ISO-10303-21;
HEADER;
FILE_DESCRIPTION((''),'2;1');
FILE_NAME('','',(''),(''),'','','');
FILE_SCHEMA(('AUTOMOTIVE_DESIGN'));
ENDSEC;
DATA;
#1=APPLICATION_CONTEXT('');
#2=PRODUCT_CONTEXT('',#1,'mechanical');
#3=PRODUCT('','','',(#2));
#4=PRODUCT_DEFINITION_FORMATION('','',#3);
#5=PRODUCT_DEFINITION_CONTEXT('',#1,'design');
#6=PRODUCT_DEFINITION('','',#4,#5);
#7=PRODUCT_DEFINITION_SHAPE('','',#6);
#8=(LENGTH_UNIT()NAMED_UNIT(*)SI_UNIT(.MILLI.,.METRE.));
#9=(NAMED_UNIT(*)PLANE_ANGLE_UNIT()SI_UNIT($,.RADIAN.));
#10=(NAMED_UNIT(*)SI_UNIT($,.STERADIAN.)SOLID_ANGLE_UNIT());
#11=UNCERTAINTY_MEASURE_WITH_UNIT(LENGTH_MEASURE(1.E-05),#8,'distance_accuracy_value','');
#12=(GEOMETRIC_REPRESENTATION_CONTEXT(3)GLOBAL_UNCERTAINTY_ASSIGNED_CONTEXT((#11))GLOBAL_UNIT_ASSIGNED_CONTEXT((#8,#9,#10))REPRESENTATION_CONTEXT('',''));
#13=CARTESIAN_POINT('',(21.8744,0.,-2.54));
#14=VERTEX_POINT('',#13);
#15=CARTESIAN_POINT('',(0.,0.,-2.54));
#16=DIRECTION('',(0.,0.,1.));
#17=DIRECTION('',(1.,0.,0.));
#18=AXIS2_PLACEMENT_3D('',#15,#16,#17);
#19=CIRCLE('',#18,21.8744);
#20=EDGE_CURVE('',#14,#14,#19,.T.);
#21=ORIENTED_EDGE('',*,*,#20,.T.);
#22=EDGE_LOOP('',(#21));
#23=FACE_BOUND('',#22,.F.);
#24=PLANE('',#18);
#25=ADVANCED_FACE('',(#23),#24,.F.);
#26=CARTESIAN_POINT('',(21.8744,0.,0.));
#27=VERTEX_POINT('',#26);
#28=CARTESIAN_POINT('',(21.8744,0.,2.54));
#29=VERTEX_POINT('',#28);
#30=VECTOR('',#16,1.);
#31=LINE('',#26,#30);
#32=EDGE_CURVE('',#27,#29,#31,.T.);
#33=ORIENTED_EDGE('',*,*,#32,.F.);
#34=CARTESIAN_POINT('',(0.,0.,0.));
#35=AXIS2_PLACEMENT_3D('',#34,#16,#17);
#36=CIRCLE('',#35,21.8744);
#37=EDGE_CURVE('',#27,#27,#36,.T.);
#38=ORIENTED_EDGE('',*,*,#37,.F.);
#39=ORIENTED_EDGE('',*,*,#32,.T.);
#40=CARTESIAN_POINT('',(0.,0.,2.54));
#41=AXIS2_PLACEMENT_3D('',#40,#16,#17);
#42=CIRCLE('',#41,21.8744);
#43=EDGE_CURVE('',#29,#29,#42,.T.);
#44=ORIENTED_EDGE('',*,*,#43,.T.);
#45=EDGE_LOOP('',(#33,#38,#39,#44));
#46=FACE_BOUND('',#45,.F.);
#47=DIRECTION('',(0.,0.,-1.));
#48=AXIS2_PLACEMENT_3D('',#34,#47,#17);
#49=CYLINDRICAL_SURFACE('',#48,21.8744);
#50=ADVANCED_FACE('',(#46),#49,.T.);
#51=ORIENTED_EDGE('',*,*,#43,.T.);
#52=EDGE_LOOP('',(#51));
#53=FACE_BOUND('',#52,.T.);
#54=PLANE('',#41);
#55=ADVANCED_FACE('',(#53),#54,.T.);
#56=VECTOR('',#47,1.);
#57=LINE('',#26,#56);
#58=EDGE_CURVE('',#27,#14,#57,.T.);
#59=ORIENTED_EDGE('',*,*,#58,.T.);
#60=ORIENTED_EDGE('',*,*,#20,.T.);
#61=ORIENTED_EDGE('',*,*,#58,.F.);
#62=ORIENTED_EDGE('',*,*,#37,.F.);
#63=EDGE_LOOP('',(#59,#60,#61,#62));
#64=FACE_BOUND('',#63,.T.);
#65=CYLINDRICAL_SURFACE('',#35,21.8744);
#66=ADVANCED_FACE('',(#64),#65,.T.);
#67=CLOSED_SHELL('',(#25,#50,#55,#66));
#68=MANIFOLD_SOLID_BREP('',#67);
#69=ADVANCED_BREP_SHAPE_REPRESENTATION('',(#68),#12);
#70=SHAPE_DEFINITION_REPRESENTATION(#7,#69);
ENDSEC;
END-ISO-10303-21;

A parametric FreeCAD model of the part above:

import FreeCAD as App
import Part
import Sketcher

V = App.Vector
Q = App.Units.Quantity

doc = App.newDocument("Part")
params = doc.addObject("Spreadsheet::Sheet", "Params")
for row, (alias, value) in enumerate([
    ("pad1_length", "0.2 in"),
], start=1):
    params.set(f"A{row}", alias)
    params.set(f"B{row}", "=" + value)
    params.setAlias(f"B{row}", alias)

body = doc.addObject("PartDesign::Body", "Body")

# Sketch on XY plane
sketch1 = doc.addObject("Sketcher::SketchObject", "Sketch")
body.addObject(sketch1)
sketch1.AttachmentSupport = (doc.XY_Plane, [""])
sketch1.MapMode = "FlatFace"
sketch1.addGeometry(Part.Circle(V(0, 0, 0), V(0, 0, 1), 22), False)
sketch1.addConstraint([
    Sketcher.Constraint("Coincident", 0, 3, -1, 1),
    Sketcher.Constraint("Diameter", 0, Q("1.7224 in")),
])
pad1 = doc.addObject("PartDesign::Pad", "Pad")
body.addObject(pad1)
pad1.Profile = sketch1
pad1.setExpression("Length", "Params.pad1_length")
pad1.Midplane = True

doc.recompute()
